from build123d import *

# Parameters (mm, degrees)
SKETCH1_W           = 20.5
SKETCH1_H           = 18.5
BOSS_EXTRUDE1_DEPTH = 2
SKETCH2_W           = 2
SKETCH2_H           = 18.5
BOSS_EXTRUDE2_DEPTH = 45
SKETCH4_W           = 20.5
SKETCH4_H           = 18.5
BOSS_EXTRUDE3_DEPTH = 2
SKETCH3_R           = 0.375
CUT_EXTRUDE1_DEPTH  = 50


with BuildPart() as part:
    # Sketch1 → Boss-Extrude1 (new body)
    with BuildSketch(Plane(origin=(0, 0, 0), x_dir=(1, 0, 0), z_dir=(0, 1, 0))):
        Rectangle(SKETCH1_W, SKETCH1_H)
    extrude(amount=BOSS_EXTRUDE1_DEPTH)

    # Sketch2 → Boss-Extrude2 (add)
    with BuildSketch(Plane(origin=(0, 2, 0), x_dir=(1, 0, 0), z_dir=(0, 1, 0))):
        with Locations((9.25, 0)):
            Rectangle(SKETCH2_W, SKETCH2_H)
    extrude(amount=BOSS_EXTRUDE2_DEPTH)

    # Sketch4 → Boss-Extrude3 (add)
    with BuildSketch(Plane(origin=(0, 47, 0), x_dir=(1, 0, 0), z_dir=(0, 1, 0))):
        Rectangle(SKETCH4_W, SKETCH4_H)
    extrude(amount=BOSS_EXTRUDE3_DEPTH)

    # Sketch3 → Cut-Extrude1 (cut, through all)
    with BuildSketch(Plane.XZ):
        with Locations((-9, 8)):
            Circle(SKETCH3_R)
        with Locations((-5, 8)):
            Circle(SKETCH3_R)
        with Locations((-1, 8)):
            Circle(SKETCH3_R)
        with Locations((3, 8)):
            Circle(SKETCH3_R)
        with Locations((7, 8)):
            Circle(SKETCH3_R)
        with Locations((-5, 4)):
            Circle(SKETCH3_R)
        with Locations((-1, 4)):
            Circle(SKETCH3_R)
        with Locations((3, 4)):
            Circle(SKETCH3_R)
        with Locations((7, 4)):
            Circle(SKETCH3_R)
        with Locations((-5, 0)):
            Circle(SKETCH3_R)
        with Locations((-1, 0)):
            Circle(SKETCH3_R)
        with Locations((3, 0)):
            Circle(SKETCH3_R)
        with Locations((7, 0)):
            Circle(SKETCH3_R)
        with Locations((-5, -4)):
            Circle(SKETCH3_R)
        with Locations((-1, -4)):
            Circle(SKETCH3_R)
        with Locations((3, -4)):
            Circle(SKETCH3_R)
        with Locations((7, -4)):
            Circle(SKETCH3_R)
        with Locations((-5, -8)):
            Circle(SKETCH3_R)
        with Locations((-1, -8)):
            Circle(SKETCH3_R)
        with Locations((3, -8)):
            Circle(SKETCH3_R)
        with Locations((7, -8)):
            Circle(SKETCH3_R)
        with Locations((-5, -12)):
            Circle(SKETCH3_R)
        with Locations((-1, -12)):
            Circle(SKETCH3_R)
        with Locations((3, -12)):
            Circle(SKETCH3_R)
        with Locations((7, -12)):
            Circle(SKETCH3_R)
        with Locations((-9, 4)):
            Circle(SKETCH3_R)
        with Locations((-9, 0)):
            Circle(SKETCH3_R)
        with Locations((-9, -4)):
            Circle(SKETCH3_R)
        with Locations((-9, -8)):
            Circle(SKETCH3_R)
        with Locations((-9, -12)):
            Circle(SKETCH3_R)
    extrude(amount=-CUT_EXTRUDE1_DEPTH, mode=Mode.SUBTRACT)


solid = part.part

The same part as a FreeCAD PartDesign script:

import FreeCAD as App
import Part
import Sketcher
from FreeCAD import Vector

doc = App.newDocument("Part")
params = doc.addObject("Spreadsheet::Sheet", "Params")
for row, (alias, value) in enumerate([
    ("sketch1_width", "20.5 mm"),
    ("sketch1_height", "18.5 mm"),
    ("pad1_length", "2 mm"),
    ("sketch2_width", "2 mm"),
    ("sketch2_height", "18.5 mm"),
    ("pad2_length", "45 mm"),
    ("sketch3_width", "20.5 mm"),
    ("sketch3_height", "18.5 mm"),
    ("pad3_length", "2 mm"),
    ("sketch4_diameter", "0.75 mm"),
], start=1):
    params.set(f"A{row}", alias)
    params.set(f"B{row}", "=" + value)
    params.setAlias(f"B{row}", alias)

body = doc.addObject("PartDesign::Body", "Body")

sketch1 = doc.addObject("Sketcher::SketchObject", "Sketch")
body.addObject(sketch1)
sketch1.AttachmentSupport = (doc.XZ_Plane, [""])
sketch1.MapMode = "FlatFace"
sketch1.addGeometry([
    Part.LineSegment(Vector(-10.25, -9.25, 0), Vector(-10.25, 9.25, 0)),
    Part.LineSegment(Vector(-10.25, 9.25, 0), Vector(10.25, 9.25, 0)),
    Part.LineSegment(Vector(10.25, 9.25, 0), Vector(10.25, -9.25, 0)),
    Part.LineSegment(Vector(10.25, -9.25, 0), Vector(-10.25, -9.25, 0)),
], False)
sketch1.addConstraint([
    Sketcher.Constraint("Coincident", 0, 2, 1, 1),
    Sketcher.Constraint("Coincident", 1, 2, 2, 1),
    Sketcher.Constraint("Coincident", 2, 2, 3, 1),
    Sketcher.Constraint("Coincident", 3, 2, 0, 1),
    Sketcher.Constraint("Vertical", 0),
    Sketcher.Constraint("Horizontal", 1),
    Sketcher.Constraint("Vertical", 2),
    Sketcher.Constraint("Horizontal", 3),
    Sketcher.Constraint("Symmetric", 0, 2, 2, 2, -1, 1),
    Sketcher.Constraint("DistanceX", 1, 1, 1, 2, 20.5),
    Sketcher.Constraint("DistanceY", 0, 1, 0, 2, 18.5),
])
sketch1.setExpression("Constraints[9]", "Params.sketch1_width")
sketch1.setExpression("Constraints[10]", "Params.sketch1_height")
pad1 = doc.addObject("PartDesign::Pad", "Pad")
body.addObject(pad1)
pad1.Profile = sketch1
pad1.setExpression("Length", "Params.pad1_length")
pad1.Reversed = True

sketch2 = doc.addObject("Sketcher::SketchObject", "Sketch001")
body.addObject(sketch2)
sketch2.AttachmentSupport = (doc.XZ_Plane, [""])
sketch2.MapMode = "FlatFace"
sketch2.AttachmentOffset = App.Placement(Vector(0, 0, -2), App.Rotation())
sketch2.addGeometry([
    Part.LineSegment(Vector(8.25, -9.25, 0), Vector(8.25, 9.25, 0)),
    Part.LineSegment(Vector(8.25, 9.25, 0), Vector(10.25, 9.25, 0)),
    Part.LineSegment(Vector(10.25, 9.25, 0), Vector(10.25, -9.25, 0)),
    Part.LineSegment(Vector(10.25, -9.25, 0), Vector(8.25, -9.25, 0)),
], False)
sketch2.addConstraint([
    Sketcher.Constraint("Coincident", 0, 2, 1, 1),
    Sketcher.Constraint("Coincident", 1, 2, 2, 1),
    Sketcher.Constraint("Coincident", 2, 2, 3, 1),
    Sketcher.Constraint("Coincident", 3, 2, 0, 1),
    Sketcher.Constraint("Vertical", 0),
    Sketcher.Constraint("Horizontal", 1),
    Sketcher.Constraint("Vertical", 2),
    Sketcher.Constraint("Horizontal", 3),
    Sketcher.Constraint("DistanceX", 1, 1, 1, 2, 2.0),
    Sketcher.Constraint("DistanceY", 0, 1, 0, 2, 18.5),
    Sketcher.Constraint("DistanceX", -1, 1, 0, 2, 8.25),
    Sketcher.Constraint("DistanceY", -1, 1, 0, 2, 9.25),
])
sketch2.setExpression("Constraints[8]", "Params.sketch2_width")
sketch2.setExpression("Constraints[9]", "Params.sketch2_height")
pad2 = doc.addObject("PartDesign::Pad", "Pad001")
body.addObject(pad2)
pad2.Profile = sketch2
pad2.setExpression("Length", "Params.pad2_length")
pad2.Reversed = True

sketch3 = doc.addObject("Sketcher::SketchObject", "Sketch002")
body.addObject(sketch3)
sketch3.AttachmentSupport = (doc.XZ_Plane, [""])
sketch3.MapMode = "FlatFace"
sketch3.AttachmentOffset = App.Placement(Vector(0, 0, -47), App.Rotation())
sketch3.addGeometry([
    Part.LineSegment(Vector(-10.25, -9.25, 0), Vector(-10.25, 9.25, 0)),
    Part.LineSegment(Vector(-10.25, 9.25, 0), Vector(10.25, 9.25, 0)),
    Part.LineSegment(Vector(10.25, 9.25, 0), Vector(10.25, -9.25, 0)),
    Part.LineSegment(Vector(10.25, -9.25, 0), Vector(-10.25, -9.25, 0)),
], False)
sketch3.addConstraint([
    Sketcher.Constraint("Coincident", 0, 2, 1, 1),
    Sketcher.Constraint("Coincident", 1, 2, 2, 1),
    Sketcher.Constraint("Coincident", 2, 2, 3, 1),
    Sketcher.Constraint("Coincident", 3, 2, 0, 1),
    Sketcher.Constraint("Vertical", 0),
    Sketcher.Constraint("Horizontal", 1),
    Sketcher.Constraint("Vertical", 2),
    Sketcher.Constraint("Horizontal", 3),
    Sketcher.Constraint("Symmetric", 0, 2, 2, 2, -1, 1),
    Sketcher.Constraint("DistanceX", 1, 1, 1, 2, 20.5),
    Sketcher.Constraint("DistanceY", 0, 1, 0, 2, 18.5),
])
sketch3.setExpression("Constraints[9]", "Params.sketch3_width")
sketch3.setExpression("Constraints[10]", "Params.sketch3_height")
pad3 = doc.addObject("PartDesign::Pad", "Pad002")
body.addObject(pad3)
pad3.Profile = sketch3
pad3.setExpression("Length", "Params.pad3_length")
pad3.Reversed = True

sketch4 = doc.addObject("Sketcher::SketchObject", "Sketch003")
body.addObject(sketch4)
sketch4.AttachmentSupport = (doc.XZ_Plane, [""])
sketch4.MapMode = "FlatFace"
sketch4.addGeometry([
    Part.Circle(Vector(-9, 8, 0), Vector(0, 0, 1), 0.375),
    Part.Circle(Vector(-5, 8, 0), Vector(0, 0, 1), 0.375),
    Part.Circle(Vector(-1, 8, 0), Vector(0, 0, 1), 0.375),
    Part.Circle(Vector(3, 8, 0), Vector(0, 0, 1), 0.375),
    Part.Circle(Vector(7, 8, 0), Vector(0, 0, 1), 0.375),
    Part.Circle(Vector(-5, 4, 0), Vector(0, 0, 1), 0.375),
    Part.Circle(Vector(-1, 4, 0), Vector(0, 0, 1), 0.375),
    Part.Circle(Vector(3, 4, 0), Vector(0, 0, 1), 0.375),
    Part.Circle(Vector(7, 4, 0), Vector(0, 0, 1), 0.375),
    Part.Circle(Vector(-5, 0, 0), Vector(0, 0, 1), 0.375),
    Part.Circle(Vector(-1, 0, 0), Vector(0, 0, 1), 0.375),
    Part.Circle(Vector(3, 0, 0), Vector(0, 0, 1), 0.375),
    Part.Circle(Vector(7, 0, 0), Vector(0, 0, 1), 0.375),
    Part.Circle(Vector(-5, -4, 0), Vector(0, 0, 1), 0.375),
    Part.Circle(Vector(-1, -4, 0), Vector(0, 0, 1), 0.375),
    Part.Circle(Vector(3, -4, 0), Vector(0, 0, 1), 0.375),
    Part.Circle(Vector(7, -4, 0), Vector(0, 0, 1), 0.375),
    Part.Circle(Vector(-5, -8, 0), Vector(0, 0, 1), 0.375),
    Part.Circle(Vector(-1, -8, 0), Vector(0, 0, 1), 0.375),
    Part.Circle(Vector(3, -8, 0), Vector(0, 0, 1), 0.375),
    Part.Circle(Vector(7, -8, 0), Vector(0, 0, 1), 0.375),
    Part.Circle(Vector(-5, -12, 0), Vector(0, 0, 1), 0.375),
    Part.Circle(Vector(-1, -12, 0), Vector(0, 0, 1), 0.375),
    Part.Circle(Vector(3, -12, 0), Vector(0, 0, 1), 0.375),
    Part.Circle(Vector(7, -12, 0), Vector(0, 0, 1), 0.375),
    Part.Circle(Vector(-9, 4, 0), Vector(0, 0, 1), 0.375),
    Part.Circle(Vector(-9, 0, 0), Vector(0, 0, 1), 0.375),
    Part.Circle(Vector(-9, -4, 0), Vector(0, 0, 1), 0.375),
    Part.Circle(Vector(-9, -8, 0), Vector(0, 0, 1), 0.375),
    Part.Circle(Vector(-9, -12, 0), Vector(0, 0, 1), 0.375),
], False)
sketch4.addConstraint([
    Sketcher.Constraint("Equal", 0, 1),
    Sketcher.Constraint("Equal", 1, 2),
    Sketcher.Constraint("Equal", 2, 3),
    Sketcher.Constraint("Equal", 3, 4),
    Sketcher.Constraint("Equal", 4, 5),
    Sketcher.Constraint("Equal", 5, 6),
    Sketcher.Constraint("Equal", 6, 7),
    Sketcher.Constraint("Equal", 7, 8),
    Sketcher.Constraint("Equal", 8, 9),
    Sketcher.Constraint("Equal", 9, 10),
    Sketcher.Constraint("Equal", 10, 11),
    Sketcher.Constraint("Equal", 11, 12),
    Sketcher.Constraint("Equal", 12, 13),
    Sketcher.Constraint("Equal", 13, 14),
    Sketcher.Constraint("Equal", 14, 15),
    Sketcher.Constraint("Equal", 15, 16),
    Sketcher.Constraint("Equal", 16, 17),
    Sketcher.Constraint("Equal", 17, 18),
    Sketcher.Constraint("Equal", 18, 19),
    Sketcher.Constraint("Equal", 19, 20),
    Sketcher.Constraint("Equal", 20, 21),
    Sketcher.Constraint("Equal", 21, 22),
    Sketcher.Constraint("Equal", 22, 23),
    Sketcher.Constraint("Equal", 23, 24),
    Sketcher.Constraint("Equal", 24, 25),
    Sketcher.Constraint("Equal", 25, 26),
    Sketcher.Constraint("Equal", 26, 27),
    Sketcher.Constraint("Equal", 27, 28),
    Sketcher.Constraint("Equal", 28, 29),
    Sketcher.Constraint("Symmetric", 5, 3, 13, 3, -1),
    Sketcher.Constraint("Symmetric", 6, 3, 14, 3, -1),
    Sketcher.Constraint("Symmetric", 7, 3, 15, 3, -1),
    Sketcher.Constraint("Symmetric", 8, 3, 16, 3, -1),
    Sketcher.Constraint("Symmetric", 1, 3, 17, 3, -1),
    Sketcher.Constraint("Symmetric", 2, 3, 18, 3, -1),
    Sketcher.Constraint("Symmetric", 3, 3, 19, 3, -1),
    Sketcher.Constraint("Symmetric", 4, 3, 20, 3, -1),
    Sketcher.Constraint("Symmetric", 25, 3, 27, 3, -1),
    Sketcher.Constraint("Symmetric", 0, 3, 28, 3, -1),
    Sketcher.Constraint("PointOnObject", 9, 3, -1),
    Sketcher.Constraint("PointOnObject", 10, 3, -1),
    Sketcher.Constraint("PointOnObject", 11, 3, -1),
    Sketcher.Constraint("PointOnObject", 12, 3, -1),
    Sketcher.Constraint("PointOnObject", 26, 3, -1),
    Sketcher.Constraint("Horizontal", 0, 3, 1, 3),
    Sketcher.Constraint("Horizontal", 1, 3, 2, 3),
    Sketcher.Constraint("Horizontal", 2, 3, 3, 3),
    Sketcher.Constraint("Horizontal", 3, 3, 4, 3),
    Sketcher.Constraint("Horizontal", 5, 3, 6, 3),
    Sketcher.Constraint("Horizontal", 6, 3, 7, 3),
    Sketcher.Constraint("Horizontal", 7, 3, 8, 3),
    Sketcher.Constraint("Horizontal", 21, 3, 22, 3),
    Sketcher.Constraint("Horizontal", 22, 3, 23, 3),
    Sketcher.Constraint("Horizontal", 23, 3, 24, 3),
    Sketcher.Constraint("Horizontal", 8, 3, 25, 3),
    Sketcher.Constraint("Horizontal", 24, 3, 29, 3),
    Sketcher.Constraint("Vertical", 1, 3, 5, 3),
    Sketcher.Constraint("Vertical", 2, 3, 6, 3),
    Sketcher.Constraint("Vertical", 3, 3, 7, 3),
    Sketcher.Constraint("Vertical", 4, 3, 8, 3),
    Sketcher.Constraint("Vertical", 5, 3, 9, 3),
    Sketcher.Constraint("Vertical", 6, 3, 10, 3),
    Sketcher.Constraint("Vertical", 7, 3, 11, 3),
    Sketcher.Constraint("Vertical", 8, 3, 12, 3),
    Sketcher.Constraint("Vertical", 17, 3, 21, 3),
    Sketcher.Constraint("Vertical", 18, 3, 22, 3),
    Sketcher.Constraint("Vertical", 19, 3, 23, 3),
    Sketcher.Constraint("Vertical", 20, 3, 24, 3),
    Sketcher.Constraint("Vertical", 0, 3, 25, 3),
    Sketcher.Constraint("Vertical", 25, 3, 26, 3),
    Sketcher.Constraint("Vertical", 28, 3, 29, 3),
    Sketcher.Constraint("Diameter", 0, 0.75),
    Sketcher.Constraint("DistanceX", 0, 3, -1, 1, 9.0),
    Sketcher.Constraint("DistanceY", -1, 1, 0, 3, 8.0),
    Sketcher.Constraint("DistanceX", 1, 3, -1, 1, 5.0),
    Sketcher.Constraint("DistanceX", 2, 3, -1, 1, 1.0),
    Sketcher.Constraint("DistanceX", -1, 1, 3, 3, 3.0),
    Sketcher.Constraint("DistanceX", -1, 1, 4, 3, 7.0),
    Sketcher.Constraint("DistanceY", -1, 1, 5, 3, 4.0),
    Sketcher.Constraint("DistanceY", 21, 3, -1, 1, 12.0),
])
sketch4.setExpression("Constraints[71]", "Params.sketch4_diameter")
pocket1 = doc.addObject("PartDesign::Pocket", "Pocket")
body.addObject(pocket1)
pocket1.Profile = sketch4
pocket1.Type = "ThroughAll"

doc.recompute()
